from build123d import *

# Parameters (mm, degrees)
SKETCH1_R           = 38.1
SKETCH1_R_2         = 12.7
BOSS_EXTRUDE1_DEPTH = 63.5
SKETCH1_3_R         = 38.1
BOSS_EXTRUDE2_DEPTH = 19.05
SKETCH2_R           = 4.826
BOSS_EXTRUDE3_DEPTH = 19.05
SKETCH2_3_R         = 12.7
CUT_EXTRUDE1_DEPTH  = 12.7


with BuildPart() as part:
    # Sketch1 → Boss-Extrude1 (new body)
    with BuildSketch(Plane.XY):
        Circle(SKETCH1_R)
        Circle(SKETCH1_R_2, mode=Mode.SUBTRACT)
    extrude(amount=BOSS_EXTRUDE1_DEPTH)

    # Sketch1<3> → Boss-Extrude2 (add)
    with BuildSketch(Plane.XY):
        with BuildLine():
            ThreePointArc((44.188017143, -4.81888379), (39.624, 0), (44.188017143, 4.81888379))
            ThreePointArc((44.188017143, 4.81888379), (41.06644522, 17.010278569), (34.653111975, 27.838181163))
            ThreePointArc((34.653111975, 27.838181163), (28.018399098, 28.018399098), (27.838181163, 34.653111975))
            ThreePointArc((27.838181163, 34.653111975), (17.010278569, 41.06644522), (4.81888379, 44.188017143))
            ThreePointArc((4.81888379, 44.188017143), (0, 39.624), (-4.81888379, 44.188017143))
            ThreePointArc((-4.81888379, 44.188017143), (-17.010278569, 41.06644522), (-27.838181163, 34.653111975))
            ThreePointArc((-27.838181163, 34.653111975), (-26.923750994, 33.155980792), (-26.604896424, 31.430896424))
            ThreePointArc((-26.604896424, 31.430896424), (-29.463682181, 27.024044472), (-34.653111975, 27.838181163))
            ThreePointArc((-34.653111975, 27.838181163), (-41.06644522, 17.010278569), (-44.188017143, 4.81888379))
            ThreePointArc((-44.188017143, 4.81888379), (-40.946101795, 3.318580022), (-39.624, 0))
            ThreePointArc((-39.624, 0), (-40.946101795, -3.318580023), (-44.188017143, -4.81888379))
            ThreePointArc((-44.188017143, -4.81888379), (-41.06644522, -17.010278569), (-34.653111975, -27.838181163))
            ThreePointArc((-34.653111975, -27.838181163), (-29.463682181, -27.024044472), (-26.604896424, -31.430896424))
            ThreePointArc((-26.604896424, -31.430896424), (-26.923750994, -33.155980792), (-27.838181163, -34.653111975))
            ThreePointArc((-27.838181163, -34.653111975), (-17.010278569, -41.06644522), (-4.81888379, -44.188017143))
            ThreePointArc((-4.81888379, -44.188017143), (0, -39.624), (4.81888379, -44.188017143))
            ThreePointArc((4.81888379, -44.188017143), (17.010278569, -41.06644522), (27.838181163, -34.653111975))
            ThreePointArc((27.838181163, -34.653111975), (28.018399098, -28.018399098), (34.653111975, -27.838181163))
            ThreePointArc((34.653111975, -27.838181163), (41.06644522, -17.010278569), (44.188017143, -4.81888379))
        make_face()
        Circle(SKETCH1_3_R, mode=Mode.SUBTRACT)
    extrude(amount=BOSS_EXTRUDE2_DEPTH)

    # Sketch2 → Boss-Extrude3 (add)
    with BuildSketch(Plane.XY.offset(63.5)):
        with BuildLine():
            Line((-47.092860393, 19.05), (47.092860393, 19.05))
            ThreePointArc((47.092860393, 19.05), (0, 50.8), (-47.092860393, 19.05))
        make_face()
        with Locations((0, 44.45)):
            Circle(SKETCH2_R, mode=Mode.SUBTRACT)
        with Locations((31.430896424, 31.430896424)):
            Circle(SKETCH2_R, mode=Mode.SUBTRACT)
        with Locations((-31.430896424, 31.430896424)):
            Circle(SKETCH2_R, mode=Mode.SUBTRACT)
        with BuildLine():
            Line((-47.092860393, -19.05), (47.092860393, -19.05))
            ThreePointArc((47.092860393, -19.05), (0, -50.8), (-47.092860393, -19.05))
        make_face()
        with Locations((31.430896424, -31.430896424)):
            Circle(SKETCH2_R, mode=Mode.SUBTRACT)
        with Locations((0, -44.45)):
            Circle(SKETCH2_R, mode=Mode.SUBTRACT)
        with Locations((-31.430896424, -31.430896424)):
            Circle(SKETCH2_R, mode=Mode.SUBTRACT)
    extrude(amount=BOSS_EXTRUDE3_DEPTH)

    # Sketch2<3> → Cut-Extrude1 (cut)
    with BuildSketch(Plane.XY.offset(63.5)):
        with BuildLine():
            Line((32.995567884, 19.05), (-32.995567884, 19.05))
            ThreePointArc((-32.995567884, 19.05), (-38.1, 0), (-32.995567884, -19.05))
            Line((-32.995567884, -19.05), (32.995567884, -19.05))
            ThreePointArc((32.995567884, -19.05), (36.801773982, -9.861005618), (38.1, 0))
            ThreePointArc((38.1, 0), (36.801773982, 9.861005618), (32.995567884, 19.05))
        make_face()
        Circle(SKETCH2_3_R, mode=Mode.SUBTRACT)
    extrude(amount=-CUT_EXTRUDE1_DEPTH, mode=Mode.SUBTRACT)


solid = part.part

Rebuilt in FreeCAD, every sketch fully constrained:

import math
import FreeCAD as App
import Part
import Sketcher
from FreeCAD import Vector
Q = App.Units.Quantity

doc = App.newDocument("Part")
body = doc.addObject("PartDesign::Body", "Body")

# Sketch on XY plane
sketch1 = doc.addObject("Sketcher::SketchObject", "Sketch")
body.addObject(sketch1)
sketch1.AttachmentSupport = (doc.XY_Plane, [""])
sketch1.MapMode = "FlatFace"
sketch1.addGeometry([
    Part.Circle(Vector(0, 0, 0), Vector(0, 0, 1), 38),
    Part.Circle(Vector(0, 0, 0), Vector(0, 0, 1), 13),
], False)
sketch1.addConstraint([
    Sketcher.Constraint("Coincident", 0, 3, -1, 1),
    Sketcher.Constraint("Coincident", 1, 3, -1, 1),
    Sketcher.Constraint("Diameter", 0, Q("3 in")),
    Sketcher.Constraint("Diameter", 1, Q("1 in")),
])
pad1 = doc.addObject("PartDesign::Pad", "Pad")
body.addObject(pad1)
pad1.Profile = sketch1
pad1.Length = Q("2.5 in")

# Sketch on XY plane
sketch2 = doc.addObject("Sketcher::SketchObject", "Sketch001")
body.addObject(sketch2)
sketch2.AttachmentSupport = (doc.XY_Plane, [""])
sketch2.MapMode = "FlatFace"
sketch2.addGeometry([
    Part.ArcOfCircle(Part.Circle(Vector(44.5, 0, 0), Vector(0, 0, 1), 4.8), math.radians(93), math.radians(267)),  # 0
    Part.ArcOfCircle(Part.Circle(Vector(0, 0, 0), Vector(0, 0, 1), 44.5), math.radians(6), math.radians(39)),  # 1
    Part.ArcOfCircle(Part.Circle(Vector(31.4, 31.4, 0), Vector(0, 0, 1), 4.8), math.radians(138), math.radians(312)),  # 2
    Part.ArcOfCircle(Part.Circle(Vector(0, 0, 0), Vector(0, 0, 1), 44.5), math.radians(51), math.radians(84)),  # 3
    Part.ArcOfCircle(Part.Circle(Vector(0, 44.5, 0), Vector(0, 0, 1), 4.8), math.radians(-177), math.radians(-3)),  # 4
    Part.ArcOfCircle(Part.Circle(Vector(0, 0, 0), Vector(0, 0, 1), 44.5), math.radians(96), math.radians(129)),  # 5
    Part.ArcOfCircle(Part.Circle(Vector(-31.4, 31.4, 0), Vector(0, 0, 1), 4.8), math.radians(0), math.radians(42)),  # 6
    Part.ArcOfCircle(Part.Circle(Vector(-31.4, 31.4, 0), Vector(0, 0, 1), 4.8), math.radians(-132), math.radians(0)),  # 7
    Part.ArcOfCircle(Part.Circle(Vector(0, 0, 0), Vector(0, 0, 1), 44.5), math.radians(141), math.radians(174)),  # 8
    Part.ArcOfCircle(Part.Circle(Vector(-44.5, 0, 0), Vector(0, 0, 1), 4.8), math.radians(0), math.radians(87)),  # 9
    Part.ArcOfCircle(Part.Circle(Vector(-44.5, 0, 0), Vector(0, 0, 1), 4.8), math.radians(-87), math.radians(0)),  # 10
    Part.ArcOfCircle(Part.Circle(Vector(0, 0, 0), Vector(0, 0, 1), 44.5), math.radians(-174), math.radians(-141)),  # 11
    Part.ArcOfCircle(Part.Circle(Vector(-31.4, -31.4, 0), Vector(0, 0, 1), 4.8), math.radians(0), math.radians(132)),  # 12
    Part.ArcOfCircle(Part.Circle(Vector(-31.4, -31.4, 0), Vector(0, 0, 1), 4.8), math.radians(-42), math.radians(0)),  # 13
    Part.ArcOfCircle(Part.Circle(Vector(0, 0, 0), Vector(0, 0, 1), 44.5), math.radians(-129), math.radians(-96)),  # 14
    Part.ArcOfCircle(Part.Circle(Vector(0, -44.5, 0), Vector(0, 0, 1), 4.8), math.radians(3), math.radians(177)),  # 15
    Part.ArcOfCircle(Part.Circle(Vector(0, 0, 0), Vector(0, 0, 1), 44.5), math.radians(-84), math.radians(-51)),  # 16
    Part.ArcOfCircle(Part.Circle(Vector(31.4, -31.4, 0), Vector(0, 0, 1), 4.8), math.radians(48), math.radians(222)),  # 17
    Part.ArcOfCircle(Part.Circle(Vector(0, 0, 0), Vector(0, 0, 1), 44.5), math.radians(-39), math.radians(-6)),  # 18
    Part.Circle(Vector(0, 0, 0), Vector(0, 0, 1), 38.1),  # 19
], False)
sketch2.addConstraint([
    Sketcher.Constraint("Coincident", 0, 1, 1, 1),
    Sketcher.Constraint("Coincident", 1, 2, 2, 2),
    Sketcher.Constraint("Coincident", 2, 1, 3, 1),
    Sketcher.Constraint("Coincident", 3, 2, 4, 2),
    Sketcher.Constraint("Coincident", 4, 1, 5, 1),
    Sketcher.Constraint("Coincident", 5, 2, 6, 2),
    Sketcher.Constraint("Tangent", 6, 1, 7, 2),
    Sketcher.Constraint("Coincident", 7, 1, 8, 1),
    Sketcher.Constraint("Coincident", 8, 2, 9, 2),
    Sketcher.Constraint("Tangent", 9, 1, 10, 2),
    Sketcher.Constraint("Coincident", 10, 1, 11, 1),
    Sketcher.Constraint("Coincident", 11, 2, 12, 2),
    Sketcher.Constraint("Tangent", 12, 1, 13, 2),
    Sketcher.Constraint("Coincident", 13, 1, 14, 1),
    Sketcher.Constraint("Coincident", 14, 2, 15, 2),
    Sketcher.Constraint("Coincident", 15, 1, 16, 1),
    Sketcher.Constraint("Coincident", 16, 2, 17, 2),
    Sketcher.Constraint("Coincident", 17, 1, 18, 1),
    Sketcher.Constraint("Coincident", 18, 2, 0, 2),
    Sketcher.Constraint("Coincident", 1, 3, -1, 1),
    Sketcher.Constraint("Coincident", 3, 3, -1, 1),
    Sketcher.Constraint("Coincident", 5, 3, -1, 1),
    Sketcher.Constraint("Coincident", 8, 3, -1, 1),
    Sketcher.Constraint("Coincident", 11, 3, -1, 1),
    Sketcher.Constraint("Coincident", 14, 3, -1, 1),
    Sketcher.Constraint("Coincident", 16, 3, -1, 1),
    Sketcher.Constraint("Coincident", 18, 3, -1, 1),
    Sketcher.Constraint("Coincident", 19, 3, -1, 1),
    Sketcher.Constraint("Equal", 0, 2),
    Sketcher.Constraint("Equal", 1, 3),
    Sketcher.Constraint("Equal", 2, 4),
    Sketcher.Constraint("Equal", 3, 5),
    Sketcher.Constraint("Equal", 4, 6),
    Sketcher.Constraint("Equal", 6, 7),
    Sketcher.Constraint("Equal", 5, 8),
    Sketcher.Constraint("Equal", 7, 9),
    Sketcher.Constraint("Equal", 9, 10),
    Sketcher.Constraint("Equal", 8, 11),
    Sketcher.Constraint("Equal", 10, 12),
    Sketcher.Constraint("Equal", 12, 13),
    Sketcher.Constraint("Equal", 11, 14),
    Sketcher.Constraint("Equal", 13, 15),
    Sketcher.Constraint("Equal", 14, 16),
    Sketcher.Constraint("Equal", 15, 17),
    Sketcher.Constraint("Equal", 16, 18),
    Sketcher.Constraint("Symmetric", 0, 3, 9, 3, -1, 1),
    Sketcher.Constraint("Symmetric", 2, 3, 12, 3, -1, 1),
    Sketcher.Constraint("Symmetric", 4, 3, 15, 3, -1, 1),
    Sketcher.Constraint("Symmetric", 6, 3, 17, 3, -1, 1),
    Sketcher.Constraint("Symmetric", 2, 3, 6, 3, -2),
    Sketcher.Constraint("PointOnObject", 0, 3, -1),
    Sketcher.Constraint("PointOnObject", 4, 3, -2),
    Sketcher.Constraint("PointOnObject", 9, 1, -1),
    Sketcher.Constraint("Horizontal", 7, 3, 6, 1),
    Sketcher.Constraint("Horizontal", 17, 3, 12, 1),
    Sketcher.Constraint("Diameter", 19, Q("3 in")),
    Sketcher.Constraint("Radius", 0, Q("0.19 in")),
    Sketcher.Constraint("Radius", 1, Q("1.75 in")),
    Sketcher.Constraint("DistanceX", -1, 1, 0, 3, Q("1.75 in")),
    Sketcher.Constraint("DistanceY", -1, 1, 4, 3, Q("1.75 in")),
    Sketcher.Constraint("DistanceX", -1, 1, 1, 2, 34.653112),
    Sketcher.Constraint("DistanceX", -1, 1, 2, 1, 27.838181),
])
pad2 = doc.addObject("PartDesign::Pad", "Pad001")
body.addObject(pad2)
pad2.Profile = sketch2
pad2.Length = Q("0.75 in")

# Sketch on XY plane
sketch3 = doc.addObject("Sketcher::SketchObject", "Sketch002")
body.addObject(sketch3)
sketch3.AttachmentSupport = (doc.XY_Plane, [""])
sketch3.MapMode = "FlatFace"
sketch3.AttachmentOffset = App.Placement(Vector(0, 0, 2.5 * 25.4), App.Rotation())
sketch3.addGeometry([
    Part.LineSegment(Vector(-47.1, 19.1, 0), Vector(47.1, 19.1, 0)),  # 0
    Part.ArcOfCircle(Part.Circle(Vector(0, 0, 0), Vector(0, 0, 1), 50.8), math.radians(22), math.radians(158)),  # 1
    Part.Circle(Vector(-31.4, 31.4, 0), Vector(0, 0, 1), 4.8),  # 2
    Part.Circle(Vector(31.4, 31.4, 0), Vector(0, 0, 1), 4.8),  # 3
    Part.Circle(Vector(0, 44.5, 0), Vector(0, 0, 1), 4.8),  # 4
    Part.LineSegment(Vector(47.1, -19.1, 0), Vector(-47.1, -19.1, 0)),  # 5
    Part.ArcOfCircle(Part.Circle(Vector(0, 0, 0), Vector(0, 0, 1), 50.8), math.radians(-158), math.radians(-22)),  # 6
    Part.Circle(Vector(0, -44.5, 0), Vector(0, 0, 1), 4.8),  # 7
    Part.Circle(Vector(31.4, -31.4, 0), Vector(0, 0, 1), 4.8),  # 8
    Part.Circle(Vector(-31.4, -31.4, 0), Vector(0, 0, 1), 4.8),  # 9
], False)
sketch3.addConstraint([
    Sketcher.Constraint("Coincident", 0, 1, 1, 2),
    Sketcher.Constraint("Coincident", 1, 1, 0, 2),
    Sketcher.Constraint("Coincident", 5, 1, 6, 2),
    Sketcher.Constraint("Coincident", 6, 1, 5, 2),
    Sketcher.Constraint("Horizontal", 0),
    Sketcher.Constraint("Horizontal", 5),
    Sketcher.Constraint("Coincident", 1, 3, -1, 1),
    Sketcher.Constraint("Coincident", 6, 3, -1, 1),
    Sketcher.Constraint("Equal", 2, 3),
    Sketcher.Constraint("Equal", 3, 4),
    Sketcher.Constraint("Equal", 1, 6),
    Sketcher.Constraint("Equal", 4, 7),
    Sketcher.Constraint("Equal", 7, 8),
    Sketcher.Constraint("Equal", 8, 9),
    Sketcher.Constraint("Symmetric", 4, 3, 7, 3, -1, 1),
    Sketcher.Constraint("Symmetric", 2, 3, 8, 3, -1, 1),
    Sketcher.Constraint("Symmetric", 3, 3, 9, 3, -1, 1),
    Sketcher.Constraint("Symmetric", 2, 3, 3, 3, -2),
    Sketcher.Constraint("PointOnObject", 4, 3, -2),
    Sketcher.Constraint("Vertical", 1, 1, 5, 1),
    Sketcher.Constraint("Radius", 1, Q("2 in")),
    Sketcher.Constraint("Diameter", 2, Q("0.38 in")),
    Sketcher.Constraint("DistanceY", 0, 1, 4, 3, Q("1 in")),
    Sketcher.Constraint("DistanceY", 7, 3, 4, 3, Q("3.5 in")),
    Sketcher.Constraint("DistanceX", 2, 3, -1, 1, 31.430896),
    Sketcher.Constraint("DistanceY", -1, 1, 2, 3, 31.430896),
])
pad3 = doc.addObject("PartDesign::Pad", "Pad002")
body.addObject(pad3)
pad3.Profile = sketch3
pad3.Length = Q("0.75 in")

# Sketch on XY plane
sketch4 = doc.addObject("Sketcher::SketchObject", "Sketch003")
body.addObject(sketch4)
sketch4.AttachmentSupport = (doc.XY_Plane, [""])
sketch4.MapMode = "FlatFace"
sketch4.AttachmentOffset = App.Placement(Vector(0, 0, 2.5 * 25.4), App.Rotation())
sketch4.addGeometry([
    Part.LineSegment(Vector(33, 19, 0), Vector(-33, 19, 0)),  # 0
    Part.ArcOfCircle(Part.Circle(Vector(0, 0, 0), Vector(0, 0, 1), 38), math.radians(150), math.radians(210)),  # 1
    Part.LineSegment(Vector(-33, -19, 0), Vector(33, -19, 0)),  # 2
    Part.ArcOfCircle(Part.Circle(Vector(0, 0, 0), Vector(0, 0, 1), 38), math.radians(-30), math.radians(0)),  # 3
    Part.ArcOfCircle(Part.Circle(Vector(0, 0, 0), Vector(0, 0, 1), 38), math.radians(0), math.radians(30)),  # 4
    Part.Circle(Vector(0, 0, 0), Vector(0, 0, 1), 13),  # 5
], False)
sketch4.addConstraint([
    Sketcher.Constraint("Coincident", 0, 2, 1, 1),
    Sketcher.Constraint("Coincident", 1, 2, 2, 1),
    Sketcher.Constraint("Coincident", 2, 2, 3, 1),
    Sketcher.Constraint("Tangent", 3, 2, 4, 1),
    Sketcher.Constraint("Coincident", 4, 2, 0, 1),
    Sketcher.Constraint("Horizontal", 0),
    Sketcher.Constraint("Horizontal", 2),
    Sketcher.Constraint("Coincident", 1, 3, -1, 1),
    Sketcher.Constraint("Coincident", 3, 3, -1, 1),
    Sketcher.Constraint("Coincident", 5, 3, -1, 1),
    Sketcher.Constraint("Equal", 1, 3),
    Sketcher.Constraint("Equal", 3, 4),
    Sketcher.Constraint("PointOnObject", 3, 2, -1),
    Sketcher.Constraint("Vertical", 0, 2, 1, 2),
    Sketcher.Constraint("Diameter", 5, Q("1 in")),
    Sketcher.Constraint("Radius", 1, Q("1.5 in")),
    Sketcher.Constraint("DistanceY", 1, 2, 0, 2, Q("1.5 in")),
])
pocket1 = doc.addObject("PartDesign::Pocket", "Pocket")
body.addObject(pocket1)
pocket1.Profile = sketch4
pocket1.Length = Q("0.5 in")

doc.recompute()
